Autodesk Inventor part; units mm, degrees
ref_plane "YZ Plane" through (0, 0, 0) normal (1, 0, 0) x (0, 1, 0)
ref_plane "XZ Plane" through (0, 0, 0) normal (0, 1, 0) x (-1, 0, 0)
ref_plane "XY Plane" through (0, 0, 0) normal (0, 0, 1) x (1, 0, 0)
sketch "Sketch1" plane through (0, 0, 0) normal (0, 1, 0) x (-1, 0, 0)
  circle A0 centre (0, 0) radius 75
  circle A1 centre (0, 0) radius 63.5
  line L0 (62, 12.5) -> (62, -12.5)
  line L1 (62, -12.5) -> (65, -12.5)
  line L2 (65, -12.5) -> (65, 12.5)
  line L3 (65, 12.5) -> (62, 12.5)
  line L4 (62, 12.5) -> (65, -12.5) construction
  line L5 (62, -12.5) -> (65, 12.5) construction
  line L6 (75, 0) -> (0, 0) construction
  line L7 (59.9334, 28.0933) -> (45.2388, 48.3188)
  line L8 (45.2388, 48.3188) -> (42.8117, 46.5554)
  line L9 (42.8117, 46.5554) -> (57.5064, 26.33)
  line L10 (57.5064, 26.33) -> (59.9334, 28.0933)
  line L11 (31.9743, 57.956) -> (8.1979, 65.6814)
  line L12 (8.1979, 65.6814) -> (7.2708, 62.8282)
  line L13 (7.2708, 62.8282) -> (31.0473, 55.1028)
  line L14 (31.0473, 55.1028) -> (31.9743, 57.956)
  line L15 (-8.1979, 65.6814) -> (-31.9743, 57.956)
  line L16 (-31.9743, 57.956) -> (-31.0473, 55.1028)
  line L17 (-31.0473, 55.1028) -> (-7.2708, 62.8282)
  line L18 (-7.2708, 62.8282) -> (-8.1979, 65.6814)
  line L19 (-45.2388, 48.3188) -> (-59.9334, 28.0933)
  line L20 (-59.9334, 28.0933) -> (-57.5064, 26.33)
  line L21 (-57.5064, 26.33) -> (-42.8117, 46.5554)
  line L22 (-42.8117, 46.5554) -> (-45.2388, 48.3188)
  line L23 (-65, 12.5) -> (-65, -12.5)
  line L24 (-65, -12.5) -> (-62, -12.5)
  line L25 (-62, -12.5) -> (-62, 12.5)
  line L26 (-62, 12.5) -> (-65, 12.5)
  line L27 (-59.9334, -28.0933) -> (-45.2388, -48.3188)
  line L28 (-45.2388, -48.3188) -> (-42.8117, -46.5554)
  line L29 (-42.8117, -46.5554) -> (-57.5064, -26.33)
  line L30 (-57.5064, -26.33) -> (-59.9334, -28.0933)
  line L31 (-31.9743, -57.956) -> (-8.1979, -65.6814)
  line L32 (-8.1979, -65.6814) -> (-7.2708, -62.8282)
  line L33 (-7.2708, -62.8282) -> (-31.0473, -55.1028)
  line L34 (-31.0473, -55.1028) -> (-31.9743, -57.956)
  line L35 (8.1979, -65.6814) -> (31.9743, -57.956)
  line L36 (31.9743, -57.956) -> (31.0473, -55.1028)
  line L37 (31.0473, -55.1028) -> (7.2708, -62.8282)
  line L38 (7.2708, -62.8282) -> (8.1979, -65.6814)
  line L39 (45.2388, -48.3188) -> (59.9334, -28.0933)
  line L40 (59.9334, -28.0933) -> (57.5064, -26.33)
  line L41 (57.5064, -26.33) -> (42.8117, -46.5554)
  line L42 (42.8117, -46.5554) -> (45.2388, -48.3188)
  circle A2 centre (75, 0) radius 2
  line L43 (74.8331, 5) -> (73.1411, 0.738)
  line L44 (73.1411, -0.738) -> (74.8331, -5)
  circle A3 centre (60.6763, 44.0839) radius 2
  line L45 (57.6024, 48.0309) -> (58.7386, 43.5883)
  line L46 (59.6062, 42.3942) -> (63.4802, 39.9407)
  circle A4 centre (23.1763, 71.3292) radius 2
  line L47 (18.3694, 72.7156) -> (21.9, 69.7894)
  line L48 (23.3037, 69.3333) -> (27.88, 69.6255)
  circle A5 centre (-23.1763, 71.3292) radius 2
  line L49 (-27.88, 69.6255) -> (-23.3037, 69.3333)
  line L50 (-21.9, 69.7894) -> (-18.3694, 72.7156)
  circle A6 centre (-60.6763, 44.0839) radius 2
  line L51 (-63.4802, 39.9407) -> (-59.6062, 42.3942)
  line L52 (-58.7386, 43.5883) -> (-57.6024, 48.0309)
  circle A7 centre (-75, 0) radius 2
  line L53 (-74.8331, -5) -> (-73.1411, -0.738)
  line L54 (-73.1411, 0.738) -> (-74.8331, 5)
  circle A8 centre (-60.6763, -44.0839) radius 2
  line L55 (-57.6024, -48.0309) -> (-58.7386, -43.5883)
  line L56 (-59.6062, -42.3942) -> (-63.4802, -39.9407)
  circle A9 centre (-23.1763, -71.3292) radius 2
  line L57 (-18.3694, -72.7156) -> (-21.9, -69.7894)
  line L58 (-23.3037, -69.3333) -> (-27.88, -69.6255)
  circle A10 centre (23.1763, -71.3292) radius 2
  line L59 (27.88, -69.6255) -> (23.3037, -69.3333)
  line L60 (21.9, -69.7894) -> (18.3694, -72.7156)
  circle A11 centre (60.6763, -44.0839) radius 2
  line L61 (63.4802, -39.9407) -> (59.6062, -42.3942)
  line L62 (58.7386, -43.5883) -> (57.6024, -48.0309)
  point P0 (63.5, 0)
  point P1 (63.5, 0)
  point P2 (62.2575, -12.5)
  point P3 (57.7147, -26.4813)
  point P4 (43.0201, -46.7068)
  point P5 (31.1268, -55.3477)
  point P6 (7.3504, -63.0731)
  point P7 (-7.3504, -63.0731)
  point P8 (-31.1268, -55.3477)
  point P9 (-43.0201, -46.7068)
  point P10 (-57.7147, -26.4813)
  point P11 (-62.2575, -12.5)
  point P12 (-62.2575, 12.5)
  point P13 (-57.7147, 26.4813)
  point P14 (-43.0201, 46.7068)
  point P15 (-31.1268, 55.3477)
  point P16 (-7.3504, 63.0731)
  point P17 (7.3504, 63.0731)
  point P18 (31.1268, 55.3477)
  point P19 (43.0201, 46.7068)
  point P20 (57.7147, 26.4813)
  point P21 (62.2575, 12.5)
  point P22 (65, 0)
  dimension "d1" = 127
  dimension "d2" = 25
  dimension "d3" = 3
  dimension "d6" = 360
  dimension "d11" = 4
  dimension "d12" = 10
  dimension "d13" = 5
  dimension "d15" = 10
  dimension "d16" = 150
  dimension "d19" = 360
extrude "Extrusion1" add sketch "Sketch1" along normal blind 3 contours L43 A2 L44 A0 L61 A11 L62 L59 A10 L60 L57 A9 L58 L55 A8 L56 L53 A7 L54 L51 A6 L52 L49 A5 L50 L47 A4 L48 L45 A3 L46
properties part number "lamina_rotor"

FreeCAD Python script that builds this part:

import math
import FreeCAD as App
import Part
import Sketcher

V = App.Vector
Q = App.Units.Quantity

doc = App.newDocument("Part")
params = doc.addObject("Spreadsheet::Sheet", "Params")
for row, (alias, value) in enumerate([
    ("sketch1_radius", "75 mm"),
    ("sketch1_radius2", "2 mm"),
    ("sketch1_radius3", "63.5 mm"),
    ("sketch1_height", "25 mm"),
    ("sketch1_length", "25 mm"),
    ("pad1_length", "3 mm"),
], start=1):
    params.set(f"A{row}", alias)
    params.set(f"B{row}", "=" + value)
    params.setAlias(f"B{row}", alias)

body = doc.addObject("PartDesign::Body", "Body")

sketch1 = body.newObject("Sketcher::SketchObject", "Sketch")
sketch1.AttachmentSupport = (doc.getObject("XZ_Plane"), [""])
sketch1.MapMode = "FlatFace"
sketch1.addGeometry(Part.LineSegment(V(-73.1, 0.7, 0), V(-74.8, 5, 0)), False)
sketch1.addGeometry(Part.ArcOfCircle(Part.Circle(V(0, 0, 0), V(0, 0, 1), 75), math.radians(148), math.radians(176)), False)
sketch1.addGeometry(Part.LineSegment(V(-63.5, 39.9, 0), V(-59.6, 42.4, 0)), False)
sketch1.addGeometry(Part.ArcOfCircle(Part.Circle(V(-60.7, 44.1, 0), V(0, 0, 1), 2), math.radians(-58), math.radians(-14)), False)
sketch1.addGeometry(Part.LineSegment(V(-58.7, 43.6, 0), V(-57.6, 48, 0)), False)
sketch1.addGeometry(Part.ArcOfCircle(Part.Circle(V(0, 0, 0), V(0, 0, 1), 75), math.radians(112), math.radians(140)), False)
sketch1.addGeometry(Part.LineSegment(V(-27.9, 69.6, 0), V(-23.3, 69.3, 0)), False)
sketch1.addGeometry(Part.ArcOfCircle(Part.Circle(V(-23.2, 71.3, 0), V(0, 0, 1), 2), math.radians(-94), math.radians(-50)), False)
sketch1.addGeometry(Part.LineSegment(V(-21.9, 69.8, 0), V(-18.4, 72.7, 0)), False)
sketch1.addGeometry(Part.ArcOfCircle(Part.Circle(V(0, 0, 0), V(0, 0, 1), 75), math.radians(76), math.radians(104)), False)
sketch1.addGeometry(Part.LineSegment(V(18.4, 72.7, 0), V(21.9, 69.8, 0)), False)
sketch1.addGeometry(Part.ArcOfCircle(Part.Circle(V(23.2, 71.3, 0), V(0, 0, 1), 2), math.radians(-130), math.radians(-86)), False)
sketch1.addGeometry(Part.LineSegment(V(23.3, 69.3, 0), V(27.9, 69.6, 0)), False)
sketch1.addGeometry(Part.ArcOfCircle(Part.Circle(V(0, 0, 0), V(0, 0, 1), 75), math.radians(40), math.radians(68)), False)
sketch1.addGeometry(Part.LineSegment(V(57.6, 48, 0), V(58.7, 43.6, 0)), False)
sketch1.addGeometry(Part.ArcOfCircle(Part.Circle(V(60.7, 44.1, 0), V(0, 0, 1), 2), math.radians(-166), math.radians(-122)), False)
sketch1.addGeometry(Part.LineSegment(V(59.6, 42.4, 0), V(63.5, 39.9, 0)), False)
sketch1.addGeometry(Part.ArcOfCircle(Part.Circle(V(0, 0, 0), V(0, 0, 1), 75), math.radians(4), math.radians(32)), False)
sketch1.addGeometry(Part.LineSegment(V(74.8, 5, 0), V(73.1, 0.7, 0)), False)
sketch1.addGeometry(Part.ArcOfCircle(Part.Circle(V(75, 0, 0), V(0, 0, 1), 2), math.radians(158), math.radians(202)), False)
sketch1.addGeometry(Part.LineSegment(V(73.1, -0.7, 0), V(74.8, -5, 0)), False)
sketch1.addGeometry(Part.ArcOfCircle(Part.Circle(V(0, 0, 0), V(0, 0, 1), 75), math.radians(-32), math.radians(-4)), False)
sketch1.addGeometry(Part.LineSegment(V(63.5, -39.9, 0), V(59.6, -42.4, 0)), False)
sketch1.addGeometry(Part.ArcOfCircle(Part.Circle(V(60.7, -44.1, 0), V(0, 0, 1), 2), math.radians(122), math.radians(166)), False)
sketch1.addGeometry(Part.LineSegment(V(58.7, -43.6, 0), V(57.6, -48, 0)), False)
sketch1.addGeometry(Part.ArcOfCircle(Part.Circle(V(0, 0, 0), V(0, 0, 1), 75), math.radians(-68), math.radians(-40)), False)
sketch1.addGeometry(Part.LineSegment(V(27.9, -69.6, 0), V(23.3, -69.3, 0)), False)
sketch1.addGeometry(Part.ArcOfCircle(Part.Circle(V(23.2, -71.3, 0), V(0, 0, 1), 2), math.radians(86), math.radians(130)), False)
sketch1.addGeometry(Part.LineSegment(V(21.9, -69.8, 0), V(18.4, -72.7, 0)), False)
sketch1.addGeometry(Part.ArcOfCircle(Part.Circle(V(0, 0, 0), V(0, 0, 1), 75), math.radians(-104), math.radians(-76)), False)
sketch1.addGeometry(Part.LineSegment(V(-18.4, -72.7, 0), V(-21.9, -69.8, 0)), False)
sketch1.addGeometry(Part.ArcOfCircle(Part.Circle(V(-23.2, -71.3, 0), V(0, 0, 1), 2), math.radians(50), math.radians(94)), False)
sketch1.addGeometry(Part.LineSegment(V(-23.3, -69.3, 0), V(-27.9, -69.6, 0)), False)
sketch1.addGeometry(Part.ArcOfCircle(Part.Circle(V(0, 0, 0), V(0, 0, 1), 75), math.radians(-140), math.radians(-112)), False)
sketch1.addGeometry(Part.LineSegment(V(-57.6, -48, 0), V(-58.7, -43.6, 0)), False)
sketch1.addGeometry(Part.ArcOfCircle(Part.Circle(V(-60.7, -44.1, 0), V(0, 0, 1), 2), math.radians(14), math.radians(58)), False)
sketch1.addGeometry(Part.LineSegment(V(-59.6, -42.4, 0), V(-63.5, -39.9, 0)), False)
sketch1.addGeometry(Part.ArcOfCircle(Part.Circle(V(0, 0, 0), V(0, 0, 1), 75), math.radians(-176), math.radians(-148)), False)
sketch1.addGeometry(Part.LineSegment(V(-74.8, -5, 0), V(-73.1, -0.7, 0)), False)
sketch1.addGeometry(Part.ArcOfCircle(Part.Circle(V(-75, 0, 0), V(0, 0, 1), 2), math.radians(-22), math.radians(22)), False)
sketch1.addGeometry(Part.ArcOfCircle(Part.Circle(V(0, 0, 0), V(0, 0, 1), 63.5), math.radians(155.35), math.radians(168.65)), False)
sketch1.addGeometry(Part.LineSegment(V(-62.3, 12.5, 0), V(-65, 12.5, 0)), False)
sketch1.addGeometry(Part.LineSegment(V(-65, 12.5, 0), V(-65, -12.5, 0)), False)
sketch1.addGeometry(Part.LineSegment(V(-65, -12.5, 0), V(-62.3, -12.5, 0)), False)
sketch1.addGeometry(Part.ArcOfCircle(Part.Circle(V(0, 0, 0), V(0, 0, 1), 63.5), math.radians(-168.65), math.radians(-155.35)), False)
sketch1.addGeometry(Part.LineSegment(V(-57.7, -26.5, 0), V(-59.9, -28.1, 0)), False)
sketch1.addGeometry(Part.LineSegment(V(-59.9, -28.1, 0), V(-45.2, -48.3, 0)), False)
sketch1.addGeometry(Part.LineSegment(V(-45.2, -48.3, 0), V(-43, -46.7, 0)), False)
sketch1.addGeometry(Part.ArcOfCircle(Part.Circle(V(0, 0, 0), V(0, 0, 1), 63.5), math.radians(-132.65), math.radians(-119.35)), False)
sketch1.addGeometry(Part.LineSegment(V(-31.1, -55.3, 0), V(-32, -58, 0)), False)
sketch1.addGeometry(Part.LineSegment(V(-32, -58, 0), V(-8.2, -65.7, 0)), False)
sketch1.addGeometry(Part.LineSegment(V(-8.2, -65.7, 0), V(-7.4, -63.1, 0)), False)
sketch1.addGeometry(Part.ArcOfCircle(Part.Circle(V(0, 0, 0), V(0, 0, 1), 63.5), math.radians(-96.65), math.radians(-83.35)), False)
sketch1.addGeometry(Part.LineSegment(V(7.4, -63.1, 0), V(8.2, -65.7, 0)), False)
sketch1.addGeometry(Part.LineSegment(V(8.2, -65.7, 0), V(32, -58, 0)), False)
sketch1.addGeometry(Part.LineSegment(V(32, -58, 0), V(31.1, -55.3, 0)), False)
sketch1.addGeometry(Part.ArcOfCircle(Part.Circle(V(0, 0, 0), V(0, 0, 1), 63.5), math.radians(-60.65), math.radians(-47.35)), False)
sketch1.addGeometry(Part.LineSegment(V(43, -46.7, 0), V(45.2, -48.3, 0)), False)
sketch1.addGeometry(Part.LineSegment(V(45.2, -48.3, 0), V(59.9, -28.1, 0)), False)
sketch1.addGeometry(Part.LineSegment(V(59.9, -28.1, 0), V(57.7, -26.5, 0)), False)
sketch1.addGeometry(Part.ArcOfCircle(Part.Circle(V(0, 0, 0), V(0, 0, 1), 63.5), math.radians(-24.65), math.radians(-11.35)), False)
sketch1.addGeometry(Part.LineSegment(V(62.3, -12.5, 0), V(65, -12.5, 0)), False)
sketch1.addGeometry(Part.LineSegment(V(65, -12.5, 0), V(65, 12.5, 0)), False)
sketch1.addGeometry(Part.LineSegment(V(65, 12.5, 0), V(62.3, 12.5, 0)), False)
sketch1.addGeometry(Part.ArcOfCircle(Part.Circle(V(0, 0, 0), V(0, 0, 1), 63.5), math.radians(11.35), math.radians(24.65)), False)
sketch1.addGeometry(Part.LineSegment(V(57.7, 26.5, 0), V(59.9, 28.1, 0)), False)
sketch1.addGeometry(Part.LineSegment(V(59.9, 28.1, 0), V(45.2, 48.3, 0)), False)
sketch1.addGeometry(Part.LineSegment(V(45.2, 48.3, 0), V(43, 46.7, 0)), False)
sketch1.addGeometry(Part.ArcOfCircle(Part.Circle(V(0, 0, 0), V(0, 0, 1), 63.5), math.radians(47.35), math.radians(60.65)), False)
sketch1.addGeometry(Part.LineSegment(V(31.1, 55.3, 0), V(32, 58, 0)), False)
sketch1.addGeometry(Part.LineSegment(V(32, 58, 0), V(8.2, 65.7, 0)), False)
sketch1.addGeometry(Part.LineSegment(V(8.2, 65.7, 0), V(7.4, 63.1, 0)), False)
sketch1.addGeometry(Part.ArcOfCircle(Part.Circle(V(0, 0, 0), V(0, 0, 1), 63.5), math.radians(83.35), math.radians(96.65)), False)
sketch1.addGeometry(Part.LineSegment(V(-7.4, 63.1, 0), V(-8.2, 65.7, 0)), False)
sketch1.addGeometry(Part.LineSegment(V(-8.2, 65.7, 0), V(-32, 58, 0)), False)
sketch1.addGeometry(Part.LineSegment(V(-32, 58, 0), V(-31.1, 55.3, 0)), False)
sketch1.addGeometry(Part.ArcOfCircle(Part.Circle(V(0, 0, 0), V(0, 0, 1), 63.5), math.radians(119.35), math.radians(132.65)), False)
sketch1.addGeometry(Part.LineSegment(V(-43, 46.7, 0), V(-45.2, 48.3, 0)), False)
sketch1.addGeometry(Part.LineSegment(V(-45.2, 48.3, 0), V(-59.9, 28.1, 0)), False)
sketch1.addGeometry(Part.LineSegment(V(-59.9, 28.1, 0), V(-57.7, 26.5, 0)), False)
sketch1.addConstraint(Sketcher.Constraint("Coincident", 0, 2, 1, 2))
sketch1.addConstraint(Sketcher.Constraint("Coincident", 1, 1, 2, 1))
sketch1.addConstraint(Sketcher.Constraint("Tangent", 2, 2, 3, 1))
sketch1.addConstraint(Sketcher.Constraint("Tangent", 3, 2, 4, 1))
sketch1.addConstraint(Sketcher.Constraint("Coincident", 4, 2, 5, 2))
sketch1.addConstraint(Sketcher.Constraint("Coincident", 5, 1, 6, 1))
sketch1.addConstraint(Sketcher.Constraint("Tangent", 6, 2, 7, 1))
sketch1.addConstraint(Sketcher.Constraint("Tangent", 7, 2, 8, 1))
sketch1.addConstraint(Sketcher.Constraint("Coincident", 8, 2, 9, 2))
sketch1.addConstraint(Sketcher.Constraint("Coincident", 9, 1, 10, 1))
sketch1.addConstraint(Sketcher.Constraint("Tangent", 10, 2, 11, 1))
sketch1.addConstraint(Sketcher.Constraint("Tangent", 11, 2, 12, 1))
sketch1.addConstraint(Sketcher.Constraint("Coincident", 12, 2, 13, 2))
sketch1.addConstraint(Sketcher.Constraint("Coincident", 13, 1, 14, 1))
sketch1.addConstraint(Sketcher.Constraint("Tangent", 14, 2, 15, 1))
sketch1.addConstraint(Sketcher.Constraint("Tangent", 15, 2, 16, 1))
sketch1.addConstraint(Sketcher.Constraint("Coincident", 16, 2, 17, 2))
sketch1.addConstraint(Sketcher.Constraint("Coincident", 17, 1, 18, 1))
sketch1.addConstraint(Sketcher.Constraint("Tangent", 18, 2, 19, 1))
sketch1.addConstraint(Sketcher.Constraint("Tangent", 19, 2, 20, 1))
sketch1.addConstraint(Sketcher.Constraint("Coincident", 20, 2, 21, 2))
sketch1.addConstraint(Sketcher.Constraint("Coincident", 21, 1, 22, 1))
sketch1.addConstraint(Sketcher.Constraint("Tangent", 22, 2, 23, 1))
sketch1.addConstraint(Sketcher.Constraint("Tangent", 23, 2, 24, 1))
sketch1.addConstraint(Sketcher.Constraint("Coincident", 24, 2, 25, 2))
sketch1.addConstraint(Sketcher.Constraint("Coincident", 25, 1, 26, 1))
sketch1.addConstraint(Sketcher.Constraint("Tangent", 26, 2, 27, 1))
sketch1.addConstraint(Sketcher.Constraint("Tangent", 27, 2, 28, 1))
sketch1.addConstraint(Sketcher.Constraint("Coincident", 28, 2, 29, 2))
sketch1.addConstraint(Sketcher.Constraint("Coincident", 29, 1, 30, 1))
sketch1.addConstraint(Sketcher.Constraint("Tangent", 30, 2, 31, 1))
sketch1.addConstraint(Sketcher.Constraint("Tangent", 31, 2, 32, 1))
sketch1.addConstraint(Sketcher.Constraint("Coincident", 32, 2, 33, 2))
sketch1.addConstraint(Sketcher.Constraint("Coincident", 33, 1, 34, 1))
sketch1.addConstraint(Sketcher.Constraint("Tangent", 34, 2, 35, 1))
sketch1.addConstraint(Sketcher.Constraint("Tangent", 35, 2, 36, 1))
sketch1.addConstraint(Sketcher.Constraint("Coincident", 36, 2, 37, 2))
sketch1.addConstraint(Sketcher.Constraint("Coincident", 37, 1, 38, 1))
sketch1.addConstraint(Sketcher.Constraint("Tangent", 38, 2, 39, 1))
sketch1.addConstraint(Sketcher.Constraint("Tangent", 39, 2, 0, 1))
sketch1.addConstraint(Sketcher.Constraint("Coincident", 40, 2, 41, 1))
sketch1.addConstraint(Sketcher.Constraint("Coincident", 41, 2, 42, 1))
sketch1.addConstraint(Sketcher.Constraint("Coincident", 42, 2, 43, 1))
sketch1.addConstraint(Sketcher.Constraint("Coincident", 43, 2, 44, 1))
sketch1.addConstraint(Sketcher.Constraint("Coincident", 44, 2, 45, 1))
sketch1.addConstraint(Sketcher.Constraint("Coincident", 45, 2, 46, 1))
sketch1.addConstraint(Sketcher.Constraint("Coincident", 46, 2, 47, 1))
sketch1.addConstraint(Sketcher.Constraint("Coincident", 47, 2, 48, 1))
sketch1.addConstraint(Sketcher.Constraint("Coincident", 48, 2, 49, 1))
sketch1.addConstraint(Sketcher.Constraint("Coincident", 49, 2, 50, 1))
sketch1.addConstraint(Sketcher.Constraint("Coincident", 50, 2, 51, 1))
sketch1.addConstraint(Sketcher.Constraint("Coincident", 51, 2, 52, 1))
sketch1.addConstraint(Sketcher.Constraint("Coincident", 52, 2, 53, 1))
sketch1.addConstraint(Sketcher.Constraint("Coincident", 53, 2, 54, 1))
sketch1.addConstraint(Sketcher.Constraint("Coincident", 54, 2, 55, 1))
sketch1.addConstraint(Sketcher.Constraint("Coincident", 55, 2, 56, 1))
sketch1.addConstraint(Sketcher.Constraint("Coincident", 56, 2, 57, 1))
sketch1.addConstraint(Sketcher.Constraint("Coincident", 57, 2, 58, 1))
sketch1.addConstraint(Sketcher.Constraint("Coincident", 58, 2, 59, 1))
sketch1.addConstraint(Sketcher.Constraint("Coincident", 59, 2, 60, 1))
sketch1.addConstraint(Sketcher.Constraint("Coincident", 60, 2, 61, 1))
sketch1.addConstraint(Sketcher.Constraint("Coincident", 61, 2, 62, 1))
sketch1.addConstraint(Sketcher.Constraint("Coincident", 62, 2, 63, 1))
sketch1.addConstraint(Sketcher.Constraint("Coincident", 63, 2, 64, 1))
sketch1.addConstraint(Sketcher.Constraint("Coincident", 64, 2, 65, 1))
sketch1.addConstraint(Sketcher.Constraint("Coincident", 65, 2, 66, 1))
sketch1.addConstraint(Sketcher.Constraint("Coincident", 66, 2, 67, 1))
sketch1.addConstraint(Sketcher.Constraint("Coincident", 67, 2, 68, 1))
sketch1.addConstraint(Sketcher.Constraint("Coincident", 68, 2, 69, 1))
sketch1.addConstraint(Sketcher.Constraint("Coincident", 69, 2, 70, 1))
sketch1.addConstraint(Sketcher.Constraint("Coincident", 70, 2, 71, 1))
sketch1.addConstraint(Sketcher.Constraint("Coincident", 71, 2, 72, 1))
sketch1.addConstraint(Sketcher.Constraint("Coincident", 72, 2, 73, 1))
sketch1.addConstraint(Sketcher.Constraint("Coincident", 73, 2, 74, 1))
sketch1.addConstraint(Sketcher.Constraint("Coincident", 74, 2, 75, 1))
sketch1.addConstraint(Sketcher.Constraint("Coincident", 75, 2, 76, 1))
sketch1.addConstraint(Sketcher.Constraint("Coincident", 76, 2, 77, 1))
sketch1.addConstraint(Sketcher.Constraint("Coincident", 77, 2, 78, 1))
sketch1.addConstraint(Sketcher.Constraint("Coincident", 78, 2, 79, 1))
sketch1.addConstraint(Sketcher.Constraint("Coincident", 79, 2, 40, 1))
sketch1.addConstraint(Sketcher.Constraint("Horizontal", 41))
sketch1.addConstraint(Sketcher.Constraint("Vertical", 42))
sketch1.addConstraint(Sketcher.Constraint("Horizontal", 43))
sketch1.addConstraint(Sketcher.Constraint("Horizontal", 61))
sketch1.addConstraint(Sketcher.Constraint("Vertical", 62))
sketch1.addConstraint(Sketcher.Constraint("Horizontal", 63))
sketch1.addConstraint(Sketcher.Constraint("Coincident", 1, 3, -1, 1))
sketch1.addConstraint(Sketcher.Constraint("Coincident", 5, 3, -1, 1))
sketch1.addConstraint(Sketcher.Constraint("Coincident", 9, 3, -1, 1))
sketch1.addConstraint(Sketcher.Constraint("Coincident", 13, 3, -1, 1))
sketch1.addConstraint(Sketcher.Constraint("Coincident", 17, 3, -1, 1))
sketch1.addConstraint(Sketcher.Constraint("Coincident", 21, 3, -1, 1))
sketch1.addConstraint(Sketcher.Constraint("Coincident", 25, 3, -1, 1))
sketch1.addConstraint(Sketcher.Constraint("Coincident", 29, 3, -1, 1))
sketch1.addConstraint(Sketcher.Constraint("Coincident", 33, 3, -1, 1))
sketch1.addConstraint(Sketcher.Constraint("Coincident", 37, 3, -1, 1))
sketch1.addConstraint(Sketcher.Constraint("Coincident", 40, 3, -1, 1))
sketch1.addConstraint(Sketcher.Constraint("Coincident", 44, 3, -1, 1))
sketch1.addConstraint(Sketcher.Constraint("Coincident", 48, 3, -1, 1))
sketch1.addConstraint(Sketcher.Constraint("Coincident", 52, 3, -1, 1))
sketch1.addConstraint(Sketcher.Constraint("Coincident", 56, 3, -1, 1))
sketch1.addConstraint(Sketcher.Constraint("Coincident", 60, 3, -1, 1))
sketch1.addConstraint(Sketcher.Constraint("Coincident", 64, 3, -1, 1))
sketch1.addConstraint(Sketcher.Constraint("Coincident", 68, 3, -1, 1))
sketch1.addConstraint(Sketcher.Constraint("Coincident", 72, 3, -1, 1))
sketch1.addConstraint(Sketcher.Constraint("Coincident", 76, 3, -1, 1))
sketch1.addConstraint(Sketcher.Constraint("Equal", 1, 5))
sketch1.addConstraint(Sketcher.Constraint("Equal", 3, 7))
sketch1.addConstraint(Sketcher.Constraint("Equal", 5, 9))
sketch1.addConstraint(Sketcher.Constraint("Equal", 7, 11))
sketch1.addConstraint(Sketcher.Constraint("Equal", 9, 13))
sketch1.addConstraint(Sketcher.Constraint("Equal", 11, 15))
sketch1.addConstraint(Sketcher.Constraint("Equal", 13, 17))
sketch1.addConstraint(Sketcher.Constraint("Equal", 15, 19))
sketch1.addConstraint(Sketcher.Constraint("Equal", 17, 21))
sketch1.addConstraint(Sketcher.Constraint("Equal", 19, 23))
sketch1.addConstraint(Sketcher.Constraint("Equal", 21, 25))
sketch1.addConstraint(Sketcher.Constraint("Equal", 23, 27))
sketch1.addConstraint(Sketcher.Constraint("Equal", 25, 29))
sketch1.addConstraint(Sketcher.Constraint("Equal", 27, 31))
sketch1.addConstraint(Sketcher.Constraint("Equal", 29, 33))
sketch1.addConstraint(Sketcher.Constraint("Equal", 31, 35))
sketch1.addConstraint(Sketcher.Constraint("Equal", 33, 37))
sketch1.addConstraint(Sketcher.Constraint("Equal", 35, 39))
sketch1.addConstraint(Sketcher.Constraint("Equal", 40, 44))
sketch1.addConstraint(Sketcher.Constraint("Equal", 44, 48))
sketch1.addConstraint(Sketcher.Constraint("Equal", 48, 52))
sketch1.addConstraint(Sketcher.Constraint("Equal", 52, 56))
sketch1.addConstraint(Sketcher.Constraint("Equal", 56, 60))
sketch1.addConstraint(Sketcher.Constraint("Equal", 60, 64))
sketch1.addConstraint(Sketcher.Constraint("Equal", 64, 68))
sketch1.addConstraint(Sketcher.Constraint("Equal", 68, 72))
sketch1.addConstraint(Sketcher.Constraint("Equal", 72, 76))
sketch1.addConstraint(Sketcher.Constraint("Symmetric", 3, 3, 23, 3, -1, 1))
sketch1.addConstraint(Sketcher.Constraint("Symmetric", 7, 3, 27, 3, -1, 1))
sketch1.addConstraint(Sketcher.Constraint("Symmetric", 11, 3, 31, 3, -1, 1))
sketch1.addConstraint(Sketcher.Constraint("Symmetric", 15, 3, 35, 3, -1, 1))
sketch1.addConstraint(Sketcher.Constraint("Symmetric", 19, 3, 39, 3, -1, 1))
sketch1.addConstraint(Sketcher.Constraint("Symmetric", 41, 2, 61, 2, -1, 1))
sketch1.addConstraint(Sketcher.Constraint("Symmetric", 45, 2, 65, 2, -1, 1))
sketch1.addConstraint(Sketcher.Constraint("Symmetric", 46, 2, 66, 2, -1, 1))
sketch1.addConstraint(Sketcher.Constraint("Symmetric", 49, 2, 69, 2, -1, 1))
sketch1.addConstraint(Sketcher.Constraint("Symmetric", 50, 2, 70, 2, -1, 1))
sketch1.addConstraint(Sketcher.Constraint("Symmetric", 53, 2, 73, 2, -1, 1))
sketch1.addConstraint(Sketcher.Constraint("Symmetric", 54, 2, 74, 2, -1, 1))
sketch1.addConstraint(Sketcher.Constraint("Symmetric", 57, 2, 77, 2, -1, 1))
sketch1.addConstraint(Sketcher.Constraint("Symmetric", 58, 2, 78, 2, -1, 1))
sketch1.addConstraint(Sketcher.Constraint("Symmetric", 7, 3, 11, 3, -2))
sketch1.addConstraint(Sketcher.Constraint("Symmetric", 3, 3, 15, 3, -2))
sketch1.addConstraint(Sketcher.Constraint("Symmetric", 19, 2, 38, 2, -2))
sketch1.addConstraint(Sketcher.Constraint("Symmetric", 50, 2, 53, 2, -2))
sketch1.addConstraint(Sketcher.Constraint("Symmetric", 49, 2, 54, 2, -2))
sketch1.addConstraint(Sketcher.Constraint("Symmetric", 46, 2, 57, 2, -2))
sketch1.addConstraint(Sketcher.Constraint("Symmetric", 45, 2, 58, 2, -2))
sketch1.addConstraint(Sketcher.Constraint("Parallel", 0, 20))
sketch1.addConstraint(Sketcher.Constraint("Parallel", 2, 22))
sketch1.addConstraint(Sketcher.Constraint("Parallel", 4, 24))
sketch1.addConstraint(Sketcher.Constraint("Parallel", 6, 26))
sketch1.addConstraint(Sketcher.Constraint("Parallel", 8, 28))
sketch1.addConstraint(Sketcher.Constraint("Parallel", 10, 30))
sketch1.addConstraint(Sketcher.Constraint("Parallel", 12, 32))
sketch1.addConstraint(Sketcher.Constraint("Parallel", 14, 34))
sketch1.addConstraint(Sketcher.Constraint("Parallel", 16, 36))
sketch1.addConstraint(Sketcher.Constraint("Parallel", 18, 38))
sketch1.addConstraint(Sketcher.Constraint("Perpendicular", 45, 46))
sketch1.addConstraint(Sketcher.Constraint("Perpendicular", 46, 47))
sketch1.addConstraint(Sketcher.Constraint("Perpendicular", 49, 50))
sketch1.addConstraint(Sketcher.Constraint("Perpendicular", 50, 51))
sketch1.addConstraint(Sketcher.Constraint("Perpendicular", 53, 54))
sketch1.addConstraint(Sketcher.Constraint("Perpendicular", 54, 55))
sketch1.addConstraint(Sketcher.Constraint("Perpendicular", 57, 58))
sketch1.addConstraint(Sketcher.Constraint("Perpendicular", 58, 59))
sketch1.addConstraint(Sketcher.Constraint("Parallel", 47, 65))
sketch1.addConstraint(Sketcher.Constraint("Perpendicular", 66, 67))
sketch1.addConstraint(Sketcher.Constraint("Parallel", 51, 69))
sketch1.addConstraint(Sketcher.Constraint("Perpendicular", 70, 71))
sketch1.addConstraint(Sketcher.Constraint("Parallel", 55, 73))
sketch1.addConstraint(Sketcher.Constraint("Perpendicular", 74, 75))
sketch1.addConstraint(Sketcher.Constraint("Parallel", 59, 77))
sketch1.addConstraint(Sketcher.Constraint("Perpendicular", 78, 79))
sketch1.addConstraint(Sketcher.Constraint("Horizontal", 8, 2, 9, 1))
sketch1.addConstraint(Sketcher.Constraint("Horizontal", 6, 2, 11, 2))
sketch1.addConstraint(Sketcher.Constraint("Horizontal", 4, 2, 13, 1))
sketch1.addConstraint(Sketcher.Constraint("Horizontal", 2, 2, 15, 2))
sketch1.addConstraint(Sketcher.Constraint("Horizontal", 43, 2, 60, 2))
sketch1.addConstraint(Sketcher.Constraint("Horizontal", 41, 2, 62, 2))
sketch1.addConstraint(Sketcher.Constraint("Equal", 0, 2))
sketch1.addConstraint(Sketcher.Constraint("Equal", 2, 4))
sketch1.addConstraint(Sketcher.Constraint("Equal", 4, 6))
sketch1.addConstraint(Sketcher.Constraint("Equal", 6, 8))
sketch1.addConstraint(Sketcher.Constraint("Equal", 45, 47))
sketch1.addConstraint(Sketcher.Constraint("Equal", 47, 49))
sketch1.addConstraint(Sketcher.Constraint("Equal", 46, 50))
sketch1.addConstraint(Sketcher.Constraint("Equal", 49, 51))
sketch1.addConstraint(Sketcher.Constraint("Radius", 1, 75.0))
sketch1.addConstraint(Sketcher.Constraint("Radius", 3, 2.0))
sketch1.addConstraint(Sketcher.Constraint("Radius", 40, 63.5))
sketch1.addConstraint(Sketcher.Constraint("DistanceY", 42, 2, 42, 1, 25.0))
sketch1.addConstraint(Sketcher.Constraint("Distance", 46, 25.0))
sketch1.addConstraint(Sketcher.Constraint("DistanceY", -1, 1, 0, 2, 5.0))
sketch1.addConstraint(Sketcher.Constraint("Angle", 45, Q("-144.0003 deg")))
sketch1.addConstraint(Sketcher.Constraint("Angle", 49, Q("-107.999 deg")))
sketch1.addConstraint(Sketcher.Constraint("DistanceX", -1, 1, 19, 3, 75.0))
sketch1.addConstraint(Sketcher.Constraint("DistanceX", 41, 2, -1, 1, 65.0))
sketch1.addConstraint(Sketcher.Constraint("DistanceX", 7, 2, -1, 1, 21.9))
sketch1.addConstraint(Sketcher.Constraint("DistanceX", 5, 1, -1, 1, 27.88))
sketch1.addConstraint(Sketcher.Constraint("DistanceY", -1, 1, 3, 3, 44.084))
sketch1.addConstraint(Sketcher.Constraint("DistanceY", -1, 1, 4, 2, 48.031))
sketch1.addConstraint(Sketcher.Constraint("DistanceY", 49, 2, -1, 1, 57.956))
sketch1.setExpression("Constraints[194]", "Params.sketch1_radius")
sketch1.setExpression("Constraints[195]", "Params.sketch1_radius2")
sketch1.setExpression("Constraints[196]", "Params.sketch1_radius3")
sketch1.setExpression("Constraints[197]", "Params.sketch1_height")
sketch1.setExpression("Constraints[198]", "Params.sketch1_length")
pad1 = body.newObject("PartDesign::Pad", "Pad")
pad1.Profile = sketch1
pad1.setExpression("Length", "Params.pad1_length")
pad1.Reversed = True

doc.recompute()
